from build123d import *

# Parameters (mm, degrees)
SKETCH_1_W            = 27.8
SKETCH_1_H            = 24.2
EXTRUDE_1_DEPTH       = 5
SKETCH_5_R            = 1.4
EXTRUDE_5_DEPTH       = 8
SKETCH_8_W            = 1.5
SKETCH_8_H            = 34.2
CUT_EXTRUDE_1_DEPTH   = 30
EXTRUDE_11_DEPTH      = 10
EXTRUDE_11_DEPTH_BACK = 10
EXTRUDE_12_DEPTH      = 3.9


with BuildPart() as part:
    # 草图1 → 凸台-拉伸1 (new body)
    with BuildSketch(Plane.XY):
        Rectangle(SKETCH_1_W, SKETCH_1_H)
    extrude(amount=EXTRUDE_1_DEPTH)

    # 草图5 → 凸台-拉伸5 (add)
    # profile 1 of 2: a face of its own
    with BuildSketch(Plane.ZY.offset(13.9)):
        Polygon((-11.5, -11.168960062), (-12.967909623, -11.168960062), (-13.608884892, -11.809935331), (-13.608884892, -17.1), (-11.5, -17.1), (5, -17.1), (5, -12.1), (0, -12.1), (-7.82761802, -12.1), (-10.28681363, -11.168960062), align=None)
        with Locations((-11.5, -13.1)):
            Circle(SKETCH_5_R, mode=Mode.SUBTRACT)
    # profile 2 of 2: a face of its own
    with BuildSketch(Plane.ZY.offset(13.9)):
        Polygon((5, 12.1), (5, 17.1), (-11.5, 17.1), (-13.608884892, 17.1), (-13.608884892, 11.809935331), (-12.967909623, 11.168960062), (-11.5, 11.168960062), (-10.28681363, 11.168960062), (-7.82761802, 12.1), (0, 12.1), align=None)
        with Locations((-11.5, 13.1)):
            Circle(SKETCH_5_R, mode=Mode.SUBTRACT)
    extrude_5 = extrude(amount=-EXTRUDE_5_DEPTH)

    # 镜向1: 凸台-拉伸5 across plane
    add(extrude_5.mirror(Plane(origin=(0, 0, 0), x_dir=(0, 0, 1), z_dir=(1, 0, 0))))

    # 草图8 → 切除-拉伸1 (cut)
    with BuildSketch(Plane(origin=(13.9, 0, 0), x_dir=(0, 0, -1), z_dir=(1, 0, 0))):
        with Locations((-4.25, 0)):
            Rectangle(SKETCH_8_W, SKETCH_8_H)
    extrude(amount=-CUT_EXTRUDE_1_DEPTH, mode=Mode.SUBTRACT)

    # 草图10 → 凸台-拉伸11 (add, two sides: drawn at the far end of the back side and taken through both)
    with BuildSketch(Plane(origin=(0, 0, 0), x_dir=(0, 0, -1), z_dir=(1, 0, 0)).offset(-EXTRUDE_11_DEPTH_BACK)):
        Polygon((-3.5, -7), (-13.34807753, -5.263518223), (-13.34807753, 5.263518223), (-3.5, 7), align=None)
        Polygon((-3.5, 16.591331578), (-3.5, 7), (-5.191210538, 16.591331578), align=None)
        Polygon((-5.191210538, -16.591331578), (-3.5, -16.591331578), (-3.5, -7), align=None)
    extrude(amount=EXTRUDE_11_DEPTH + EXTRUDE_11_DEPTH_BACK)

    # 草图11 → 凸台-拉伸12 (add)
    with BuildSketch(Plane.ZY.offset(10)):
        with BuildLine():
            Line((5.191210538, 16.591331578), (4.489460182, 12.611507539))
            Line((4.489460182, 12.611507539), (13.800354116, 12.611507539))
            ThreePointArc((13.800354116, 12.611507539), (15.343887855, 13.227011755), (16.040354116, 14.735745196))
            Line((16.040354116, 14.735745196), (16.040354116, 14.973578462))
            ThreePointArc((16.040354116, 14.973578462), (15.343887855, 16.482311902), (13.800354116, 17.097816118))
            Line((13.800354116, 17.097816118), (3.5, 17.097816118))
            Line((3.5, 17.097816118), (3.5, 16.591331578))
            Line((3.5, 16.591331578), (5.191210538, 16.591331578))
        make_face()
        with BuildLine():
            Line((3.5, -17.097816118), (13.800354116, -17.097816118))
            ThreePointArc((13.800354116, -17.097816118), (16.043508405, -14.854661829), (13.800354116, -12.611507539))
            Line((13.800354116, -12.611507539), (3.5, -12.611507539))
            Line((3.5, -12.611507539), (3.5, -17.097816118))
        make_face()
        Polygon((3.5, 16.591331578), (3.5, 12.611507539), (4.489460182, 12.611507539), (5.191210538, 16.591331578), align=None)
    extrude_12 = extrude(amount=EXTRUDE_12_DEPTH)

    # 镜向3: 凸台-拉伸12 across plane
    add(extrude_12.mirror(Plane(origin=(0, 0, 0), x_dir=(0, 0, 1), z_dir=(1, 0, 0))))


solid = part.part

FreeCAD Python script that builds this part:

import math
import FreeCAD as App
import Part
import Sketcher

V = App.Vector
Q = App.Units.Quantity


def add_polygon(sketch, points):
    """Adds a closed chain of lines whose ends are joined by coincident constraints."""
    first, n = sketch.GeometryCount, len(points)
    for a, b in zip(points, points[1:] + points[:1]):
        sketch.addGeometry(Part.LineSegment(App.Vector(*a, 0), App.Vector(*b, 0)), False)
    for i in range(n):
        sketch.addConstraint(Sketcher.Constraint("Coincident", first + i, 2, first + (i + 1) % n, 1))

doc = App.newDocument("Part")
body = doc.addObject("PartDesign::Body", "Body")

sketch1 = doc.addObject("Sketcher::SketchObject", "Sketch")
body.addObject(sketch1)
sketch1.AttachmentSupport = (doc.XY_Plane, [""])
sketch1.MapMode = "FlatFace"
add_polygon(sketch1, [(-14, 12), (-14, -12), (14, -12), (14, 12)])
sketch1.addConstraint([
    Sketcher.Constraint("Vertical", 0),
    Sketcher.Constraint("Horizontal", 1),
    Sketcher.Constraint("Vertical", 2),
    Sketcher.Constraint("Horizontal", 3),
    Sketcher.Constraint("Symmetric", 0, 2, 2, 2, -1, 1),
    Sketcher.Constraint("DistanceX", 1, 1, 1, 2, 27.8),
    Sketcher.Constraint("DistanceY", 0, 2, 0, 1, 24.2),
])
pad1 = doc.addObject("PartDesign::Pad", "Pad")
body.addObject(pad1)
pad1.Profile = sketch1
pad1.Length = 5

sketch2 = doc.addObject("Sketcher::SketchObject", "Sketch001")
body.addObject(sketch2)
sketch2.AttachmentSupport = (doc.YZ_Plane, [""])
sketch2.MapMode = "FlatFace"
sketch2.AttachmentOffset = App.Placement(V(0, 0, -13.9), App.Rotation())
add_polygon(sketch2, [(-11.2, -13), (-11.8, -13.6), (-17.1, -13.6), (-17.1, 5), (-12.1, 5), (-12.1, -7.8), (-11.2, -10.3)])
sketch2.addGeometry(Part.Circle(V(-13.1, -11.5, 0), V(0, 0, 1), 1.4), False)
add_polygon(sketch2, [(12.1, 5), (17.1, 5), (17.1, -13.6), (11.8, -13.6), (11.2, -13), (11.2, -10.3), (12.1, -7.8)])
sketch2.addGeometry(Part.Circle(V(13.1, -11.5, 0), V(0, 0, 1), 1.4), False)
sketch2.addConstraint([
    Sketcher.Constraint("Horizontal", 1),
    Sketcher.Constraint("Vertical", 2),
    Sketcher.Constraint("Horizontal", 3),
    Sketcher.Constraint("Vertical", 4),
    Sketcher.Constraint("Vertical", 6),
    Sketcher.Constraint("Horizontal", 8),
    Sketcher.Constraint("Vertical", 9),
    Sketcher.Constraint("Horizontal", 10),
    Sketcher.Constraint("Vertical", 12),
    Sketcher.Constraint("Vertical", 14),
    Sketcher.Constraint("Equal", 7, 15),
    Sketcher.Constraint("Symmetric", 7, 3, 15, 3, -2),
    Sketcher.Constraint("Symmetric", 2, 2, 8, 2, -2),
    Sketcher.Constraint("Symmetric", 0, 2, 10, 2, -2),
    Sketcher.Constraint("Symmetric", 6, 2, 11, 2, -2),
    Sketcher.Constraint("Symmetric", 4, 2, 13, 2, -2),
    Sketcher.Constraint("Perpendicular", 0, 11),
    Sketcher.Constraint("Horizontal", 5, 2, 12, 2),
    Sketcher.Constraint("Diameter", 7, 2.8),
    Sketcher.Constraint("DistanceX", 3, 1, 3, 2, 5.0),
    Sketcher.Constraint("DistanceY", -1, 1, 2, 2, 5.0),
    Sketcher.Constraint("DistanceX", 1, 2, 7, 3, 4.0),
    Sketcher.Constraint("DistanceX", 7, 3, -1, 1, 13.1),
    Sketcher.Constraint("DistanceY", 7, 3, -1, 1, 11.5),
    Sketcher.Constraint("DistanceY", 4, 2, 4, 1, 12.827618),
    Sketcher.Constraint("Distance", 5, 2.62954),
    Sketcher.Constraint("DistanceX", 1, 2, 1, 1, 5.290065),
    Sketcher.Constraint("DistanceY", 2, 1, 2, 2, 18.608885),
    Sketcher.Constraint("DistanceY", 6, 2, 6, 1, 2.681096),
])
pad2 = doc.addObject("PartDesign::Pad", "Pad001")
body.addObject(pad2)
pad2.Profile = sketch2
pad2.Length = 8
doc.recompute()

mirrored = doc.addObject("PartDesign::Mirrored", "Mirrored")
body.addObject(mirrored)
mirrored.Originals = [pad2]
mirrored.MirrorPlane = (doc.YZ_Plane, [""])
body.Tip = mirrored

sketch3 = doc.addObject("Sketcher::SketchObject", "Sketch002")
body.addObject(sketch3)
sketch3.AttachmentSupport = (doc.YZ_Plane, [""])
sketch3.MapMode = "FlatFace"
sketch3.AttachmentOffset = App.Placement(V(0, 0, 13.9), App.Rotation())
add_polygon(sketch3, [(17.1, 5), (-17.1, 5), (-17.1, 3.5), (17.1, 3.5)])
sketch3.addConstraint([
    Sketcher.Constraint("Horizontal", 0),
    Sketcher.Constraint("Vertical", 1),
    Sketcher.Constraint("Horizontal", 2),
    Sketcher.Constraint("Vertical", 3),
    Sketcher.Constraint("DistanceX", 0, 2, 0, 1, 34.2),
    Sketcher.Constraint("DistanceY", 1, 2, 1, 1, 1.5),
    Sketcher.Constraint("DistanceY", -1, 1, 0, 2, 5.0),
    Sketcher.Constraint("DistanceX", 0, 2, -1, 1, 17.1),
])
pocket1 = doc.addObject("PartDesign::Pocket", "Pocket")
body.addObject(pocket1)
pocket1.Profile = sketch3
pocket1.Length = 30

sketch4 = doc.addObject("Sketcher::SketchObject", "Sketch003")
body.addObject(sketch4)
sketch4.AttachmentSupport = (doc.YZ_Plane, [""])
sketch4.MapMode = "FlatFace"
add_polygon(sketch4, [(-5.3, 13.3), (-7, 3.5), (7, 3.5), (5.3, 13.3)])
add_polygon(sketch4, [(7, 3.5), (16.6, 3.5), (16.6, 5.2)])
add_polygon(sketch4, [(-16.6, 5.2), (-16.6, 3.5), (-7, 3.5)])
sketch4.addConstraint([
    Sketcher.Constraint("Horizontal", 1),
    Sketcher.Constraint("Horizontal", 3),
    Sketcher.Constraint("Horizontal", 4),
    Sketcher.Constraint("Vertical", 5),
    Sketcher.Constraint("Vertical", 7),
    Sketcher.Constraint("Horizontal", 8),
    Sketcher.Constraint("Coincident", 6, 2, 1, 2),
    Sketcher.Constraint("Coincident", 8, 2, 0, 2),
    Sketcher.Constraint("Symmetric", 5, 2, 9, 2, -2),
    Sketcher.Constraint("Perpendicular", 2, 6),
    Sketcher.Constraint("Perpendicular", 0, 9),
    Sketcher.Constraint("Equal", 4, 8),
    Sketcher.Constraint("DistanceX", 1, 1, 1, 2, 14.0),
    Sketcher.Constraint("Angle", 0, Q("-100 deg")),
    Sketcher.Constraint("Distance", 0, 10.0),
    Sketcher.Constraint("DistanceY", -1, 1, 0, 2, 3.5),
    Sketcher.Constraint("DistanceX", 4, 1, 4, 2, 9.591332),
])
pad3 = doc.addObject("PartDesign::Pad", "Pad002")
body.addObject(pad3)
pad3.Profile = sketch4
pad3.Type = "TwoLengths"
pad3.Length = 10
pad3.Length2 = 10

sketch5 = doc.addObject("Sketcher::SketchObject", "Sketch004")
body.addObject(sketch5)
sketch5.AttachmentSupport = (doc.YZ_Plane, [""])
sketch5.MapMode = "FlatFace"
sketch5.AttachmentOffset = App.Placement(V(0, 0, -10), App.Rotation())
sketch5.addGeometry([
    Part.ArcOfCircle(Part.Circle(V(14.85, 13.8, 0), V(0, 0, 1), 2.24), math.radians(93), math.radians(180)),
    Part.LineSegment(V(14.74, 16.04, 0), V(14.97, 16.04, 0)),
    Part.ArcOfCircle(Part.Circle(V(14.85, 13.8, 0), V(0, 0, 1), 2.24), math.radians(0), math.radians(87)),
    Part.LineSegment(V(17.1, 13.8, 0), V(17.1, 3.5, 0)),
    Part.LineSegment(V(17.1, 3.5, 0), V(12.61, 3.5, 0)),
    Part.LineSegment(V(12.61, 3.5, 0), V(12.61, 13.8, 0)),
    Part.LineSegment(V(-17.1, 3.5, 0), V(-17.1, 13.8, 0)),
    Part.ArcOfCircle(Part.Circle(V(-14.85, 13.8, 0), V(0, 0, 1), 2.24), math.radians(0), math.radians(180)),
    Part.LineSegment(V(-12.61, 13.8, 0), V(-12.61, 3.5, 0)),
    Part.LineSegment(V(-12.61, 3.5, 0), V(-17.1, 3.5, 0)),
], False)
sketch5.addConstraint([
    Sketcher.Constraint("Coincident", 0, 1, 1, 1),
    Sketcher.Constraint("Coincident", 1, 2, 2, 2),
    Sketcher.Constraint("Tangent", 2, 1, 3, 1),
    Sketcher.Constraint("Coincident", 3, 2, 4, 1),
    Sketcher.Constraint("Coincident", 4, 2, 5, 1),
    Sketcher.Constraint("Tangent", 5, 2, 0, 2),
    Sketcher.Constraint("Tangent", 6, 2, 7, 2),
    Sketcher.Constraint("Tangent", 7, 1, 8, 1),
    Sketcher.Constraint("Coincident", 8, 2, 9, 1),
    Sketcher.Constraint("Coincident", 9, 2, 6, 1),
    Sketcher.Constraint("Horizontal", 1),
    Sketcher.Constraint("Vertical", 3),
    Sketcher.Constraint("Horizontal", 4),
    Sketcher.Constraint("Vertical", 5),
    Sketcher.Constraint("Vertical", 6),
    Sketcher.Constraint("Vertical", 8),
    Sketcher.Constraint("Horizontal", 9),
    Sketcher.Constraint("Coincident", 2, 3, 0, 3),
    Sketcher.Constraint("Equal", 0, 2),
    Sketcher.Constraint("Equal", 2, 7),
    Sketcher.Constraint("Symmetric", 0, 3, 7, 3, -2),
    Sketcher.Constraint("Horizontal", 4, 2, 8, 2),
    Sketcher.Constraint("DistanceY", -1, 1, 3, 2, 3.5),
    Sketcher.Constraint("DistanceY", 2, 3, 0, 1, 2.24),
    Sketcher.Constraint("Radius", 0, 2.243154),
    Sketcher.Constraint("DistanceY", 3, 2, 3, 1, 10.300354),
    Sketcher.Constraint("DistanceX", -1, 1, 0, 3, 14.854662),
])
pad4 = doc.addObject("PartDesign::Pad", "Pad003")
body.addObject(pad4)
pad4.Profile = sketch5
pad4.Length = 3.9
pad4.Reversed = True
doc.recompute()

mirrored2 = doc.addObject("PartDesign::Mirrored", "Mirrored001")
body.addObject(mirrored2)
mirrored2.Originals = [pad4]
mirrored2.MirrorPlane = (doc.YZ_Plane, [""])
body.Tip = mirrored2

doc.recompute()
